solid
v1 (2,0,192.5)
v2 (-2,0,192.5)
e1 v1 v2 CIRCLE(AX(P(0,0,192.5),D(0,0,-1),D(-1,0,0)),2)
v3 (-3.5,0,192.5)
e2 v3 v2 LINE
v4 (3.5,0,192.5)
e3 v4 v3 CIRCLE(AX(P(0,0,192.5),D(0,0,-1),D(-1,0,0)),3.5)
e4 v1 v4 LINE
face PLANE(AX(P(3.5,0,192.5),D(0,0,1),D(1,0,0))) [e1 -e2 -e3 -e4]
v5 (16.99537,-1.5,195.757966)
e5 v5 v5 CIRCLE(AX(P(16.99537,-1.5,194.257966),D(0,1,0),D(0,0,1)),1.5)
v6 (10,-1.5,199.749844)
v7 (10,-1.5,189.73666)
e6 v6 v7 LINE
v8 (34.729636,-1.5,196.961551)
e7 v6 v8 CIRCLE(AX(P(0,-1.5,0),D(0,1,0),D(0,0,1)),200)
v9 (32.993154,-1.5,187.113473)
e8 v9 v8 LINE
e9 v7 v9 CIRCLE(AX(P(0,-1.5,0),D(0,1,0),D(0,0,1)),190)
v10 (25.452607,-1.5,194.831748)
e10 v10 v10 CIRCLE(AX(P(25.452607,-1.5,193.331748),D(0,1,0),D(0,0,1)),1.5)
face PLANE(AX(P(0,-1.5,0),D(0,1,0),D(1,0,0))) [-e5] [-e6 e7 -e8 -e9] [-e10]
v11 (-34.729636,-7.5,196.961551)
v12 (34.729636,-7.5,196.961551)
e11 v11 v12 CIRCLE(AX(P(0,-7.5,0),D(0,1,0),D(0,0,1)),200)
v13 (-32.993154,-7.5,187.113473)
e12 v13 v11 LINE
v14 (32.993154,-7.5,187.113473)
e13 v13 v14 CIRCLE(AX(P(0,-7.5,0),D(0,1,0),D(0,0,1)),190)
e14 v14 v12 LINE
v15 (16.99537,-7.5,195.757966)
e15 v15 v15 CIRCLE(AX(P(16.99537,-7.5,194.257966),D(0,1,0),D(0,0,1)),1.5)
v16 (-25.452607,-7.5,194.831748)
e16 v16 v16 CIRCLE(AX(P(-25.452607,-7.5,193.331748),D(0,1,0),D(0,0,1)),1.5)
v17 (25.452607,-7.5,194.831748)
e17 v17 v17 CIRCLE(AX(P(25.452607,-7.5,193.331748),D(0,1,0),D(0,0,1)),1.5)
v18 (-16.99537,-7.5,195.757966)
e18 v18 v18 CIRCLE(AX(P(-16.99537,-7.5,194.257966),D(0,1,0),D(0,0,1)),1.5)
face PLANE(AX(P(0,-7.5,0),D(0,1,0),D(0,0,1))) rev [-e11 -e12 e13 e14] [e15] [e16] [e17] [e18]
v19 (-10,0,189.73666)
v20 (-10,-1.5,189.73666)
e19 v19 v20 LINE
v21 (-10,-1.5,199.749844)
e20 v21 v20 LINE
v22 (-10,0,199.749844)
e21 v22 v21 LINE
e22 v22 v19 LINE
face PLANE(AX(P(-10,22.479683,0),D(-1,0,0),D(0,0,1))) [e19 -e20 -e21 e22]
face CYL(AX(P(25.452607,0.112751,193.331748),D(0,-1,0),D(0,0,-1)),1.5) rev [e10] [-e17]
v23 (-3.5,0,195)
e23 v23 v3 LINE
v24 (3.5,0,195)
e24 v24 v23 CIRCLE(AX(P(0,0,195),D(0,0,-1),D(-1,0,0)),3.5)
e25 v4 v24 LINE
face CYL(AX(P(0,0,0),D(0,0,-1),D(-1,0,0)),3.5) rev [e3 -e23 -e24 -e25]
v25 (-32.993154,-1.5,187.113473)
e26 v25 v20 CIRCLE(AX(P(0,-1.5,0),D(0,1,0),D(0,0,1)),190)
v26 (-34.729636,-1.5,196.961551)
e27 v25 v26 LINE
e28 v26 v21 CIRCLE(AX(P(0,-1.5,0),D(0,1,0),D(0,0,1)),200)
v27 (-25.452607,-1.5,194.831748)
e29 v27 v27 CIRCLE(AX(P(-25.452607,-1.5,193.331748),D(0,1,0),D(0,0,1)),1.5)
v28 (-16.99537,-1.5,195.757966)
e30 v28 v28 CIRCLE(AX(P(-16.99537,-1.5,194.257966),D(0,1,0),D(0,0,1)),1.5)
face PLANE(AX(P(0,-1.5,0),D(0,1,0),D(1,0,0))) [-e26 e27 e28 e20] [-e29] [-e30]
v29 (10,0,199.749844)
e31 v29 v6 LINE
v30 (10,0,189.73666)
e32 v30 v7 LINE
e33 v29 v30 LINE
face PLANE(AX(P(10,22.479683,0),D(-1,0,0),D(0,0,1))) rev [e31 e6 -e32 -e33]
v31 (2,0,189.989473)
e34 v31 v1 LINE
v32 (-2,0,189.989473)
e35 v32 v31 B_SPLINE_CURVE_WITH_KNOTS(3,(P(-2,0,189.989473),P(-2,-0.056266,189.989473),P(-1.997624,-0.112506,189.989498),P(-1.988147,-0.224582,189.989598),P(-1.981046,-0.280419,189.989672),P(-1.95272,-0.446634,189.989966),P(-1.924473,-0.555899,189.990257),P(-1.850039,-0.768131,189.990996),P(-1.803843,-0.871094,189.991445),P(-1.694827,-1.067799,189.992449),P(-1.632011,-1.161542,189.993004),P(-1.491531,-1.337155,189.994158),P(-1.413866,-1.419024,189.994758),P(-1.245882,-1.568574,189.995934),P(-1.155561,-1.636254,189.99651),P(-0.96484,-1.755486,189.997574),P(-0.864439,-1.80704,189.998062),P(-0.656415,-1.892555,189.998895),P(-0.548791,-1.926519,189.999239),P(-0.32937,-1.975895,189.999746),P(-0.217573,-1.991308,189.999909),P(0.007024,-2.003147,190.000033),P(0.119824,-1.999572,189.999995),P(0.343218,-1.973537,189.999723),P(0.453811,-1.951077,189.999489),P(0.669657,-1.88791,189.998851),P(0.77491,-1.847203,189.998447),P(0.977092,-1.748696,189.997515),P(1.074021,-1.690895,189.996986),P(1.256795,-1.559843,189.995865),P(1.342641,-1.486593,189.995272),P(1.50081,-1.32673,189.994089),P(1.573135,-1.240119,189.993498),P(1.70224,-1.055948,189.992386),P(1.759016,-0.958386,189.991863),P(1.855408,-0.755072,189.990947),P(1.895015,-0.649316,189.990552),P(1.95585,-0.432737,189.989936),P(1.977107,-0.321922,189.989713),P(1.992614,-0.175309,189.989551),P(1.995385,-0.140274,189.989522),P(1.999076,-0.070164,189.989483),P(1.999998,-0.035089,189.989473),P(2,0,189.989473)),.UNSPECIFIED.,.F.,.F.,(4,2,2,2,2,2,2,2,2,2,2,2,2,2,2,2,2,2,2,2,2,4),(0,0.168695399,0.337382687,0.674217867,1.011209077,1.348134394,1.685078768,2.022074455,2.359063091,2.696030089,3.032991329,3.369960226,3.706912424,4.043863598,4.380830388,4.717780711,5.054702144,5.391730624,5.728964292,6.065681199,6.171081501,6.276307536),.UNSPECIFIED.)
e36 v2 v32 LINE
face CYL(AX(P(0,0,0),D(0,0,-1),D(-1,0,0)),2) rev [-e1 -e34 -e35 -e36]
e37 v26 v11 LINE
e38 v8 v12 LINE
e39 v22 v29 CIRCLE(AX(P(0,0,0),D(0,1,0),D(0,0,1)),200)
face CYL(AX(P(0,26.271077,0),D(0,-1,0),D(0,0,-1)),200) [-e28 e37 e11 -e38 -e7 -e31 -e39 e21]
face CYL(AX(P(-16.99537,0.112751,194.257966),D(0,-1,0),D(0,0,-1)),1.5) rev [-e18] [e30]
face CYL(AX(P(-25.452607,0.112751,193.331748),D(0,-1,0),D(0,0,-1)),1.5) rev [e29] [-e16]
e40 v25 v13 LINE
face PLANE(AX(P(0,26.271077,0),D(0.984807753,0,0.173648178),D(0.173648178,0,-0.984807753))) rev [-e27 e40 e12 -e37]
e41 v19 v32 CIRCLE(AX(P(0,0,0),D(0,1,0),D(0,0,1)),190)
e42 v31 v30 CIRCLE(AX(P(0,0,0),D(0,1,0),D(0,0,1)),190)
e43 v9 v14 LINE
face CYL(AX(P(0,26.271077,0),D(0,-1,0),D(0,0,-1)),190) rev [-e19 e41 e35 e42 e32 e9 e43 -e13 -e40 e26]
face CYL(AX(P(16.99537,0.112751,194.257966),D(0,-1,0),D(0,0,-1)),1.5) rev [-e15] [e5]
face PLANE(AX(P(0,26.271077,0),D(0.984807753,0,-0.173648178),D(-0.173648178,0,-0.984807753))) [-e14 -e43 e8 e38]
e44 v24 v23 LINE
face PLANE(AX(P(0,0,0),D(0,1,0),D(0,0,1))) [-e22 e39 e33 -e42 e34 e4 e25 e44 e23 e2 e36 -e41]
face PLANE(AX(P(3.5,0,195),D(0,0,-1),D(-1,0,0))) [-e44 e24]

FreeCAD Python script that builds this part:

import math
import FreeCAD as App
import Part
import Sketcher
from FreeCAD import Vector
Q = App.Units.Quantity


def add_polygon(sketch, points):
    """Adds a closed chain of lines whose ends are joined by coincident constraints."""
    first, n = sketch.GeometryCount, len(points)
    for a, b in zip(points, points[1:] + points[:1]):
        sketch.addGeometry(Part.LineSegment(App.Vector(*a, 0), App.Vector(*b, 0)), False)
    for i in range(n):
        sketch.addConstraint(Sketcher.Constraint("Coincident", first + i, 2, first + (i + 1) % n, 1))

doc = App.newDocument("Part")
body = doc.addObject("PartDesign::Body", "Body")

sketch1 = body.newObject("Sketcher::SketchObject", "Sketch")
sketch1.AttachmentSupport = (doc.getObject("XZ_Plane"), [""])
sketch1.MapMode = "FlatFace"
sketch1.AttachmentOffset = App.Placement(Vector(0, 0, 7.5), App.Rotation())
sketch1.addGeometry(Part.ArcOfCircle(Part.Circle(Vector(0, 0, 0), Vector(0, 0, 1), 190), math.radians(93.02), math.radians(100)), False)
sketch1.addGeometry(Part.LineSegment(Vector(-33, 187, 0), Vector(-35, 197, 0)), False)
sketch1.addGeometry(Part.ArcOfCircle(Part.Circle(Vector(0, 0, 0), Vector(0, 0, 1), 200), math.radians(92.87), math.radians(100)), False)
sketch1.addGeometry(Part.LineSegment(Vector(-10, 200, 0), Vector(-10, 190, 0)), False)
sketch1.addConstraint(Sketcher.Constraint("Coincident", 0, 2, 1, 1))
sketch1.addConstraint(Sketcher.Constraint("Coincident", 1, 2, 2, 2))
sketch1.addConstraint(Sketcher.Constraint("Coincident", 2, 1, 3, 1))
sketch1.addConstraint(Sketcher.Constraint("Coincident", 3, 2, 0, 1))
sketch1.addConstraint(Sketcher.Constraint("Vertical", 3))
sketch1.addConstraint(Sketcher.Constraint("Coincident", 0, 3, -1, 1))
sketch1.addConstraint(Sketcher.Constraint("Coincident", 2, 3, -1, 1))
sketch1.addConstraint(Sketcher.Constraint("Radius", 0, 190.0))
sketch1.addConstraint(Sketcher.Constraint("Radius", 2, 200.0))
sketch1.addConstraint(Sketcher.Constraint("Angle", 1, Q("100 deg")))
sketch1.addConstraint(Sketcher.Constraint("DistanceX", 2, 1, -1, 1, 10.0))
sketch1.addConstraint(Sketcher.Constraint("DistanceY", -1, 1, 1, 2, 196.961551))
pad1 = body.newObject("PartDesign::Pad", "Pad")
pad1.Profile = sketch1
pad1.Length = 6
pad1.Reversed = True
body2 = doc.addObject("PartDesign::Body", "Body001")

sketch2 = body2.newObject("Sketcher::SketchObject", "Sketch001")
sketch2.AttachmentSupport = (doc.getObject("XZ_Plane001"), [""])
sketch2.MapMode = "FlatFace"
sketch2.AttachmentOffset = App.Placement(Vector(0, 0, 7.5), App.Rotation())
sketch2.addGeometry(Part.ArcOfCircle(Part.Circle(Vector(0, 0, 0), Vector(0, 0, 1), 190), math.radians(80), math.radians(86.98)), False)
sketch2.addGeometry(Part.LineSegment(Vector(10, 190, 0), Vector(10, 200, 0)), False)
sketch2.addGeometry(Part.ArcOfCircle(Part.Circle(Vector(0, 0, 0), Vector(0, 0, 1), 200), math.radians(80), math.radians(87.13)), False)
sketch2.addGeometry(Part.LineSegment(Vector(35, 197, 0), Vector(33, 187, 0)), False)
sketch2.addConstraint(Sketcher.Constraint("Coincident", 0, 2, 1, 1))
sketch2.addConstraint(Sketcher.Constraint("Coincident", 1, 2, 2, 2))
sketch2.addConstraint(Sketcher.Constraint("Coincident", 2, 1, 3, 1))
sketch2.addConstraint(Sketcher.Constraint("Coincident", 3, 2, 0, 1))
sketch2.addConstraint(Sketcher.Constraint("Vertical", 1))
sketch2.addConstraint(Sketcher.Constraint("Coincident", 0, 3, -1, 1))
sketch2.addConstraint(Sketcher.Constraint("Coincident", 2, 3, -1, 1))
sketch2.addConstraint(Sketcher.Constraint("Radius", 0, 190.0))
sketch2.addConstraint(Sketcher.Constraint("Radius", 2, 200.0))
sketch2.addConstraint(Sketcher.Constraint("Angle", 3, Q("-100 deg")))
sketch2.addConstraint(Sketcher.Constraint("DistanceX", -1, 1, 0, 2, 10.0))
sketch2.addConstraint(Sketcher.Constraint("DistanceY", -1, 1, 2, 1, 196.961551))
pad2 = body2.newObject("PartDesign::Pad", "Pad001")
pad2.Profile = sketch2
pad2.Length = 6
pad2.Reversed = True
body.AllowCompound = True
doc.recompute()

boolean = body.newObject("PartDesign::Boolean", "Boolean")
boolean.Type = "Fuse"
boolean.addObjects([body2])

sketch3 = body.newObject("Sketcher::SketchObject", "Sketch002")
sketch3.AttachmentSupport = (doc.getObject("XZ_Plane"), [""])
sketch3.MapMode = "FlatFace"
sketch3.AttachmentOffset = App.Placement(Vector(0, 0, 7.5), App.Rotation())
sketch3.addGeometry(Part.ArcOfCircle(Part.Circle(Vector(0, 0, 0), Vector(0, 0, 1), 190), math.radians(86.98), math.radians(93.02)), False)
sketch3.addGeometry(Part.LineSegment(Vector(-10, 190, 0), Vector(-10, 200, 0)), False)
sketch3.addGeometry(Part.ArcOfCircle(Part.Circle(Vector(0, 0, 0), Vector(0, 0, 1), 200), math.radians(87.13), math.radians(92.87)), False)
sketch3.addGeometry(Part.LineSegment(Vector(10, 200, 0), Vector(10, 190, 0)), False)
sketch3.addConstraint(Sketcher.Constraint("Coincident", 0, 2, 1, 1))
sketch3.addConstraint(Sketcher.Constraint("Coincident", 1, 2, 2, 2))
sketch3.addConstraint(Sketcher.Constraint("Coincident", 2, 1, 3, 1))
sketch3.addConstraint(Sketcher.Constraint("Coincident", 3, 2, 0, 1))
sketch3.addConstraint(Sketcher.Constraint("Vertical", 1))
sketch3.addConstraint(Sketcher.Constraint("Vertical", 3))
sketch3.addConstraint(Sketcher.Constraint("Coincident", 0, 3, -1, 1))
sketch3.addConstraint(Sketcher.Constraint("Coincident", 2, 3, -1, 1))
sketch3.addConstraint(Sketcher.Constraint("Horizontal", 1, 2, 2, 1))
sketch3.addConstraint(Sketcher.Constraint("Radius", 0, 190.0))
sketch3.addConstraint(Sketcher.Constraint("Radius", 2, 200.0))
sketch3.addConstraint(Sketcher.Constraint("DistanceX", 0, 2, -1, 1, 10.0))
pad3 = body.newObject("PartDesign::Pad", "Pad002")
pad3.Profile = sketch3
pad3.Length = 7.5
pad3.Reversed = True

sketch4 = body.newObject("Sketcher::SketchObject", "Sketch003")
sketch4.AttachmentSupport = (doc.getObject("XZ_Plane"), [""])
sketch4.MapMode = "FlatFace"
add_polygon(sketch4, [(3.5, 192.5), (2, 192.5), (2, 180), (0, 180), (0, 195), (3.5, 195)])
sketch4.addConstraint(Sketcher.Constraint("Horizontal", 0))
sketch4.addConstraint(Sketcher.Constraint("Vertical", 1))
sketch4.addConstraint(Sketcher.Constraint("Horizontal", 2))
sketch4.addConstraint(Sketcher.Constraint("Vertical", 3))
sketch4.addConstraint(Sketcher.Constraint("Horizontal", 4))
sketch4.addConstraint(Sketcher.Constraint("Vertical", 5))
sketch4.addConstraint(Sketcher.Constraint("PointOnObject", 2, 2, -2))
sketch4.addConstraint(Sketcher.Constraint("DistanceX", 2, 2, 2, 1, 2.0))
sketch4.addConstraint(Sketcher.Constraint("DistanceY", 3, 1, 3, 2, 15.0))
sketch4.addConstraint(Sketcher.Constraint("DistanceX", 0, 2, 0, 1, 1.5))
sketch4.addConstraint(Sketcher.Constraint("DistanceY", 1, 2, 1, 1, 12.5))
sketch4.addConstraint(Sketcher.Constraint("DistanceY", -1, 1, 1, 2, 180.0))
groove = body.newObject("PartDesign::Groove", "Groove")
groove.Profile = sketch4
groove.ReferenceAxis = (sketch4, ["V_Axis"])
groove.Angle = 360

sketch5 = body.newObject("Sketcher::SketchObject", "Sketch004")
sketch5.AttachmentSupport = (doc.getObject("XZ_Plane"), [""])
sketch5.MapMode = "FlatFace"
sketch5.AttachmentOffset = App.Placement(Vector(0, 0, 7.5), App.Rotation())
sketch5.addGeometry(Part.Circle(Vector(25.5, 193.3, 0), Vector(0, 0, 1), 1.5), False)
sketch5.addGeometry(Part.Circle(Vector(17, 194.3, 0), Vector(0, 0, 1), 1.5), False)
sketch5.addGeometry(Part.Circle(Vector(-25.5, 193.3, 0), Vector(0, 0, 1), 1.5), False)
sketch5.addGeometry(Part.Circle(Vector(-17, 194.3, 0), Vector(0, 0, 1), 1.5), False)
sketch5.addConstraint(Sketcher.Constraint("Equal", 0, 1))
sketch5.addConstraint(Sketcher.Constraint("Equal", 1, 2))
sketch5.addConstraint(Sketcher.Constraint("Equal", 2, 3))
sketch5.addConstraint(Sketcher.Constraint("Symmetric", 0, 3, 2, 3, -2))
sketch5.addConstraint(Sketcher.Constraint("Symmetric", 1, 3, 3, 3, -2))
sketch5.addConstraint(Sketcher.Constraint("Diameter", 0, 3.0))
sketch5.addConstraint(Sketcher.Constraint("DistanceX", -1, 1, 1, 3, 16.99537))
sketch5.addConstraint(Sketcher.Constraint("DistanceY", 0, 3, 1, 3, 0.926218))
sketch5.addConstraint(Sketcher.Constraint("DistanceX", -1, 1, 0, 3, 25.452607))
sketch5.addConstraint(Sketcher.Constraint("DistanceY", -1, 1, 0, 3, 193.331748))
pocket1 = body.newObject("PartDesign::Pocket", "Pocket")
pocket1.Profile = sketch5
pocket1.Type = "ThroughAll"
pocket1.Midplane = True

doc.recompute()
